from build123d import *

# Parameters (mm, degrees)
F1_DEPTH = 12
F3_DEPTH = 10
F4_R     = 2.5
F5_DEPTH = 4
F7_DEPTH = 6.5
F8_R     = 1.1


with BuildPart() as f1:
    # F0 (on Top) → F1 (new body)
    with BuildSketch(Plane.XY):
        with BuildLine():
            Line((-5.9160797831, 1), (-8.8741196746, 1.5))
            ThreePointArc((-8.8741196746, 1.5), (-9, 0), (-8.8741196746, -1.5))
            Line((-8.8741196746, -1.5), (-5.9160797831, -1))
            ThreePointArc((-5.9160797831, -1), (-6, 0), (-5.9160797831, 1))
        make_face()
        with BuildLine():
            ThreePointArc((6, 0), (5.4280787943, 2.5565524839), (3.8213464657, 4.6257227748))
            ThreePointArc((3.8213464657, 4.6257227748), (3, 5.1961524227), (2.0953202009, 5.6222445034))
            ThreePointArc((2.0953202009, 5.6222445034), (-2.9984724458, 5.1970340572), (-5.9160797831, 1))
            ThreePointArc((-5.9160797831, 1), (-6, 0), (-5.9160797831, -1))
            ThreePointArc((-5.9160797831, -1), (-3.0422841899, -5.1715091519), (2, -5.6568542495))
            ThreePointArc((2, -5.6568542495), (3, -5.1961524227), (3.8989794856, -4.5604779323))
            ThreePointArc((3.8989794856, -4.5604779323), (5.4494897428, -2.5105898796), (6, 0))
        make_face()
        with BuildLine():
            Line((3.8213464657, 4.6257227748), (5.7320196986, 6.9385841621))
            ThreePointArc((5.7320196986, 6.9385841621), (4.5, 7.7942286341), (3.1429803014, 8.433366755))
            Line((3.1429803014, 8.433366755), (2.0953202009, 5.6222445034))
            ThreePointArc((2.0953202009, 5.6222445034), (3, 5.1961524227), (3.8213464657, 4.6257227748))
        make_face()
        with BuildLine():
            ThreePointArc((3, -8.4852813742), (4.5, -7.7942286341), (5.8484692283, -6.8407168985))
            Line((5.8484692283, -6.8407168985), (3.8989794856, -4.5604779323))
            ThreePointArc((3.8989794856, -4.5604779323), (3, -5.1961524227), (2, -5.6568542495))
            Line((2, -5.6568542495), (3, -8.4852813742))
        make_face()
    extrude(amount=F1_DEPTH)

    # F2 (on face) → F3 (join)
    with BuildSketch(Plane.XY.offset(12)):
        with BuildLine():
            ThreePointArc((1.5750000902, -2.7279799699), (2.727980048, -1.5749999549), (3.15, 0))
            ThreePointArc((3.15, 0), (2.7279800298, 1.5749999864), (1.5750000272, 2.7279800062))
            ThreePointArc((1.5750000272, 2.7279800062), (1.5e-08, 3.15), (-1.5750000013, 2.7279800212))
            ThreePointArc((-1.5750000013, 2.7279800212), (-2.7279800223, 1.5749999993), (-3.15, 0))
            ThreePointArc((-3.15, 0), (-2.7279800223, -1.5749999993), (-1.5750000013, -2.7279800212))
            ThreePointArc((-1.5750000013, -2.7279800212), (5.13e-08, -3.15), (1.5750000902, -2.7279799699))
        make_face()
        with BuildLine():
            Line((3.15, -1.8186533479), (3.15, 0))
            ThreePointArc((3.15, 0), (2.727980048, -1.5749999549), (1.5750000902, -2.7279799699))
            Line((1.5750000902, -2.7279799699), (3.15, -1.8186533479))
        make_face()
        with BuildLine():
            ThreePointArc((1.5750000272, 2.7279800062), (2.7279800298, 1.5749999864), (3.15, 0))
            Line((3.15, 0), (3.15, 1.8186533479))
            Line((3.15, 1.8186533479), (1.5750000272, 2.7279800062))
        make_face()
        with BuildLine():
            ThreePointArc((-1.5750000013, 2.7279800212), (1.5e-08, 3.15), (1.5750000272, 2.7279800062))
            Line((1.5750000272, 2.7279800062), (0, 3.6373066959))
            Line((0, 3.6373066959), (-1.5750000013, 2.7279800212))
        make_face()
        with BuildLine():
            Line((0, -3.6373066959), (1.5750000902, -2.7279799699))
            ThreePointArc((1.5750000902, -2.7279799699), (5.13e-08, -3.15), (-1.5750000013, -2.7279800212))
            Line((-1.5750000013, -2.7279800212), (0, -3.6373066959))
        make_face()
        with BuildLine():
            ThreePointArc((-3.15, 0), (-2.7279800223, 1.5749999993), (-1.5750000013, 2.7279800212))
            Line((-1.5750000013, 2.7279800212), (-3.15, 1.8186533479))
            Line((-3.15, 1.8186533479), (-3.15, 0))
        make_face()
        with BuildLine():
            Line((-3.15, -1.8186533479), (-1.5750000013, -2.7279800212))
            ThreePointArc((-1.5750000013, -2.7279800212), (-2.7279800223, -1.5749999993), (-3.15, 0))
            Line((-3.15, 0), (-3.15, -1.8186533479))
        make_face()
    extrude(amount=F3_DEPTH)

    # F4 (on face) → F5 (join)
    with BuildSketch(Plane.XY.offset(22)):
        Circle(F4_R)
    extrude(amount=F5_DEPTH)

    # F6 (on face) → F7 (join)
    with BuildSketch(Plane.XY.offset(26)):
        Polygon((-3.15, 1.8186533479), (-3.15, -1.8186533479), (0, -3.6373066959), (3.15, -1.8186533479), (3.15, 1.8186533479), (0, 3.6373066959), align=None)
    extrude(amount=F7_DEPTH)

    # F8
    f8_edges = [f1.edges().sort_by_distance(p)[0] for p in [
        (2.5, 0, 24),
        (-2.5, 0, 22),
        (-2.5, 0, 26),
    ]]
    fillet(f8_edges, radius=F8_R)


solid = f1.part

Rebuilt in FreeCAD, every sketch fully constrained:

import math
import FreeCAD as App
import Part
import Sketcher
Q = App.Units.Quantity


def edges_at(feature, points):
    """Names of the edges that pass closest to the given points."""
    edges = feature.Shape.Edges
    near = lambda p: min(range(len(edges)), key=lambda i: edges[i].distToShape(Part.Vertex(*p))[0])
    return sorted({f"Edge{near(p) + 1}" for p in points})

doc = App.newDocument("Part")
body = doc.addObject("PartDesign::Body", "Body")

sketch1 = body.newObject("Sketcher::SketchObject", "Sketch")
sketch1.AttachmentSupport = (doc.getObject("XY_Plane"), [""])
sketch1.MapMode = "FlatFace"
sketch1.addGeometry(Part.LineSegment(App.Vector(-5.91608, 1, 0), App.Vector(-8.87412, 1.5, 0)), False)
sketch1.addGeometry(Part.ArcOfCircle(Part.Circle(App.Vector(0, 0, 0), App.Vector(0, 0, 1), 9), math.radians(170.405932), math.radians(189.594068)), False)
sketch1.addGeometry(Part.LineSegment(App.Vector(-8.87412, -1.5, 0), App.Vector(-5.91608, -1, 0)), False)
sketch1.addGeometry(Part.ArcOfCircle(Part.Circle(App.Vector(0, 0, 0), App.Vector(0, 0, 1), 6), math.radians(-170.405932), math.radians(-70.528779)), False)
sketch1.addGeometry(Part.LineSegment(App.Vector(2, -5.656854, 0), App.Vector(3, -8.485281, 0)), False)
sketch1.addGeometry(Part.ArcOfCircle(Part.Circle(App.Vector(0, 0, 0), App.Vector(0, 0, 1), 9), math.radians(-70.528779), math.radians(-49.471221)), False)
sketch1.addGeometry(Part.LineSegment(App.Vector(5.848469, -6.840717, 0), App.Vector(3.898979, -4.560478, 0)), False)
sketch1.addGeometry(Part.ArcOfCircle(Part.Circle(App.Vector(0, 0, 0), App.Vector(0, 0, 1), 6), math.radians(-49.471221), math.radians(0)), False)
sketch1.addGeometry(Part.ArcOfCircle(Part.Circle(App.Vector(0, 0, 0), App.Vector(0, 0, 1), 6), math.radians(0), math.radians(50.439616)), False)
sketch1.addGeometry(Part.LineSegment(App.Vector(3.821346, 4.625723, 0), App.Vector(5.73202, 6.938584, 0)), False)
sketch1.addGeometry(Part.ArcOfCircle(Part.Circle(App.Vector(0, 0, 0), App.Vector(0, 0, 1), 9), math.radians(50.439616), math.radians(69.560384)), False)
sketch1.addGeometry(Part.LineSegment(App.Vector(3.14298, 8.433367, 0), App.Vector(2.09532, 5.622245, 0)), False)
sketch1.addGeometry(Part.ArcOfCircle(Part.Circle(App.Vector(0, 0, 0), App.Vector(0, 0, 1), 6), math.radians(69.560384), math.radians(170.405932)), False)
sketch1.addConstraint(Sketcher.Constraint("Coincident", 0, 2, 1, 1))
sketch1.addConstraint(Sketcher.Constraint("Coincident", 1, 2, 2, 1))
sketch1.addConstraint(Sketcher.Constraint("Coincident", 2, 2, 3, 1))
sketch1.addConstraint(Sketcher.Constraint("Coincident", 3, 2, 4, 1))
sketch1.addConstraint(Sketcher.Constraint("Coincident", 4, 2, 5, 1))
sketch1.addConstraint(Sketcher.Constraint("Coincident", 5, 2, 6, 1))
sketch1.addConstraint(Sketcher.Constraint("Coincident", 6, 2, 7, 1))
sketch1.addConstraint(Sketcher.Constraint("Tangent", 7, 2, 8, 1))
sketch1.addConstraint(Sketcher.Constraint("Coincident", 8, 2, 9, 1))
sketch1.addConstraint(Sketcher.Constraint("Coincident", 9, 2, 10, 1))
sketch1.addConstraint(Sketcher.Constraint("Coincident", 10, 2, 11, 1))
sketch1.addConstraint(Sketcher.Constraint("Coincident", 11, 2, 12, 1))
sketch1.addConstraint(Sketcher.Constraint("Coincident", 12, 2, 0, 1))
sketch1.addConstraint(Sketcher.Constraint("Coincident", 1, 3, -1, 1))
sketch1.addConstraint(Sketcher.Constraint("Coincident", 3, 3, -1, 1))
sketch1.addConstraint(Sketcher.Constraint("Coincident", 5, 3, -1, 1))
sketch1.addConstraint(Sketcher.Constraint("Coincident", 7, 3, -1, 1))
sketch1.addConstraint(Sketcher.Constraint("Coincident", 10, 3, -1, 1))
sketch1.addConstraint(Sketcher.Constraint("Coincident", 12, 3, -1, 1))
sketch1.addConstraint(Sketcher.Constraint("Equal", 1, 5))
sketch1.addConstraint(Sketcher.Constraint("Equal", 3, 7))
sketch1.addConstraint(Sketcher.Constraint("Equal", 7, 8))
sketch1.addConstraint(Sketcher.Constraint("Equal", 5, 10))
sketch1.addConstraint(Sketcher.Constraint("Equal", 8, 12))
sketch1.addConstraint(Sketcher.Constraint("PointOnObject", 7, 2, -1))
sketch1.addConstraint(Sketcher.Constraint("Vertical", 0, 2, 1, 2))
sketch1.addConstraint(Sketcher.Constraint("Vertical", 2, 2, 12, 2))
sketch1.addConstraint(Sketcher.Constraint("Radius", 1, Q("9 mm")))
sketch1.addConstraint(Sketcher.Constraint("Radius", 3, Q("6 mm")))
sketch1.addConstraint(Sketcher.Constraint("DistanceY", 2, 2, -1, 1, Q("1 mm")))
sketch1.addConstraint(Sketcher.Constraint("DistanceX", -1, 1, 3, 2, Q("2 mm")))
sketch1.addConstraint(Sketcher.Constraint("DistanceX", -1, 1, 4, 2, Q("3 mm")))
sketch1.addConstraint(Sketcher.Constraint("DistanceY", 1, 2, 0, 2, Q("3 mm")))
sketch1.addConstraint(Sketcher.Constraint("DistanceX", 11, 2, 9, 2, Q("3.636699 mm")))
sketch1.addConstraint(Sketcher.Constraint("DistanceX", -1, 1, 5, 2, Q("5.848469 mm")))
sketch1.addConstraint(Sketcher.Constraint("DistanceX", -1, 1, 6, 2, Q("3.898979 mm")))
sketch1.addConstraint(Sketcher.Constraint("DistanceX", -1, 1, 9, 2, Q("5.73202 mm")))
sketch1.addConstraint(Sketcher.Constraint("DistanceX", -1, 1, 10, 2, Q("3.14298 mm")))
sketch1.addConstraint(Sketcher.Constraint("DistanceY", 8, 2, 9, 2, Q("2.312861 mm")))
pad1 = body.newObject("PartDesign::Pad", "Pad")
pad1.Profile = sketch1
pad1.Length = 12

sketch2 = body.newObject("Sketcher::SketchObject", "Sketch001")
sketch2.AttachmentSupport = (doc.getObject("XY_Plane"), [""])
sketch2.MapMode = "FlatFace"
sketch2.AttachmentOffset = App.Placement(App.Vector(0, 0, 12), App.Rotation())
sketch2.addGeometry(Part.LineSegment(App.Vector(-1.575, -2.72798, 0), App.Vector(0, -3.637307, 0)), False)
sketch2.addGeometry(Part.LineSegment(App.Vector(0, -3.637307, 0), App.Vector(1.575, -2.72798, 0)), False)
sketch2.addGeometry(Part.LineSegment(App.Vector(1.575, -2.72798, 0), App.Vector(3.15, -1.818653, 0)), False)
sketch2.addGeometry(Part.LineSegment(App.Vector(3.15, -1.818653, 0), App.Vector(3.15, 1.818653, 0)), False)
sketch2.addGeometry(Part.LineSegment(App.Vector(3.15, 1.818653, 0), App.Vector(1.575, 2.72798, 0)), False)
sketch2.addGeometry(Part.LineSegment(App.Vector(1.575, 2.72798, 0), App.Vector(0, 3.637307, 0)), False)
sketch2.addGeometry(Part.LineSegment(App.Vector(0, 3.637307, 0), App.Vector(-1.575, 2.72798, 0)), False)
sketch2.addGeometry(Part.LineSegment(App.Vector(-1.575, 2.72798, 0), App.Vector(-3.15, 1.818653, 0)), False)
sketch2.addGeometry(Part.LineSegment(App.Vector(-3.15, 1.818653, 0), App.Vector(-3.15, -1.818653, 0)), False)
sketch2.addGeometry(Part.LineSegment(App.Vector(-3.15, -1.818653, 0), App.Vector(-1.575, -2.72798, 0)), False)
sketch2.addConstraint(Sketcher.Constraint("Coincident", 0, 2, 1, 1))
sketch2.addConstraint(Sketcher.Constraint("Coincident", 1, 2, 2, 1))
sketch2.addConstraint(Sketcher.Constraint("Coincident", 2, 2, 3, 1))
sketch2.addConstraint(Sketcher.Constraint("Coincident", 3, 2, 4, 1))
sketch2.addConstraint(Sketcher.Constraint("Coincident", 4, 2, 5, 1))
sketch2.addConstraint(Sketcher.Constraint("Coincident", 5, 2, 6, 1))
sketch2.addConstraint(Sketcher.Constraint("Coincident", 6, 2, 7, 1))
sketch2.addConstraint(Sketcher.Constraint("Coincident", 7, 2, 8, 1))
sketch2.addConstraint(Sketcher.Constraint("Coincident", 8, 2, 9, 1))
sketch2.addConstraint(Sketcher.Constraint("Coincident", 9, 2, 0, 1))
sketch2.addConstraint(Sketcher.Constraint("Vertical", 3))
sketch2.addConstraint(Sketcher.Constraint("Vertical", 8))
sketch2.addConstraint(Sketcher.Constraint("Symmetric", 0, 2, 5, 2, -1, 1))
sketch2.addConstraint(Sketcher.Constraint("Symmetric", 1, 2, 6, 2, -1, 1))
sketch2.addConstraint(Sketcher.Constraint("Symmetric", 2, 2, 7, 2, -1, 1))
sketch2.addConstraint(Sketcher.Constraint("Symmetric", 4, 2, 9, 2, -1, 1))
sketch2.addConstraint(Sketcher.Constraint("Symmetric", 4, 2, 6, 2, -2))
sketch2.addConstraint(Sketcher.Constraint("PointOnObject", 0, 2, -2))
sketch2.addConstraint(Sketcher.Constraint("Parallel", 1, 2))
sketch2.addConstraint(Sketcher.Constraint("Parallel", 0, 4))
sketch2.addConstraint(Sketcher.Constraint("Parallel", 5, 9))
sketch2.addConstraint(Sketcher.Constraint("Equal", 1, 2))
sketch2.addConstraint(Sketcher.Constraint("Angle", 0, Q("-30 deg")))
sketch2.addConstraint(Sketcher.Constraint("DistanceX", 7, 2, 3, 2, Q("6.3 mm")))
sketch2.addConstraint(Sketcher.Constraint("DistanceY", 3, 1, 3, 2, Q("3.637307 mm")))
pad2 = body.newObject("PartDesign::Pad", "Pad001")
pad2.Profile = sketch2
pad2.Length = 10

sketch3 = body.newObject("Sketcher::SketchObject", "Sketch002")
sketch3.AttachmentSupport = (doc.getObject("XY_Plane"), [""])
sketch3.MapMode = "FlatFace"
sketch3.AttachmentOffset = App.Placement(App.Vector(0, 0, 22), App.Rotation())
sketch3.addGeometry(Part.Circle(App.Vector(0, 0, 0), App.Vector(0, 0, 1), 2.5), False)
sketch3.addConstraint(Sketcher.Constraint("Coincident", 0, 3, -1, 1))
sketch3.addConstraint(Sketcher.Constraint("Diameter", 0, Q("5 mm")))
pad3 = body.newObject("PartDesign::Pad", "Pad002")
pad3.Profile = sketch3
pad3.Length = 4

sketch4 = body.newObject("Sketcher::SketchObject", "Sketch003")
sketch4.AttachmentSupport = (doc.getObject("XY_Plane"), [""])
sketch4.MapMode = "FlatFace"
sketch4.AttachmentOffset = App.Placement(App.Vector(0, 0, 26), App.Rotation())
sketch4.addGeometry(Part.LineSegment(App.Vector(-3.15, 1.818653, 0), App.Vector(-3.15, -1.818653, 0)), False)
sketch4.addGeometry(Part.LineSegment(App.Vector(-3.15, -1.818653, 0), App.Vector(0, -3.637307, 0)), False)
sketch4.addGeometry(Part.LineSegment(App.Vector(0, -3.637307, 0), App.Vector(3.15, -1.818653, 0)), False)
sketch4.addGeometry(Part.LineSegment(App.Vector(3.15, -1.818653, 0), App.Vector(3.15, 1.818653, 0)), False)
sketch4.addGeometry(Part.LineSegment(App.Vector(3.15, 1.818653, 0), App.Vector(0, 3.637307, 0)), False)
sketch4.addGeometry(Part.LineSegment(App.Vector(0, 3.637307, 0), App.Vector(-3.15, 1.818653, 0)), False)
sketch4.addConstraint(Sketcher.Constraint("Coincident", 0, 2, 1, 1))
sketch4.addConstraint(Sketcher.Constraint("Coincident", 1, 2, 2, 1))
sketch4.addConstraint(Sketcher.Constraint("Coincident", 2, 2, 3, 1))
sketch4.addConstraint(Sketcher.Constraint("Coincident", 3, 2, 4, 1))
sketch4.addConstraint(Sketcher.Constraint("Coincident", 4, 2, 5, 1))
sketch4.addConstraint(Sketcher.Constraint("Coincident", 5, 2, 0, 1))
sketch4.addConstraint(Sketcher.Constraint("Vertical", 0))
sketch4.addConstraint(Sketcher.Constraint("Vertical", 3))
sketch4.addConstraint(Sketcher.Constraint("Symmetric", 0, 2, 3, 2, -1, 1))
sketch4.addConstraint(Sketcher.Constraint("Symmetric", 1, 2, 4, 2, -1, 1))
sketch4.addConstraint(Sketcher.Constraint("PointOnObject", 1, 2, -2))
sketch4.addConstraint(Sketcher.Constraint("Parallel", 2, 5))
sketch4.addConstraint(Sketcher.Constraint("Horizontal", 0, 2, 2, 2))
sketch4.addConstraint(Sketcher.Constraint("Angle", 1, Q("-30 deg")))
sketch4.addConstraint(Sketcher.Constraint("DistanceX", 0, 2, 2, 2, Q("6.3 mm")))
sketch4.addConstraint(Sketcher.Constraint("DistanceY", 0, 2, 0, 1, Q("3.637307 mm")))
pad4 = body.newObject("PartDesign::Pad", "Pad003")
pad4.Profile = sketch4
pad4.Length = 6.5
doc.recompute()

fillet = body.newObject("PartDesign::Fillet", "Fillet")
fillet.Base = (pad4, edges_at(pad4, [(2.5, 0, 24), (-2.5, 0, 22), (-2.5, 0, 26)]))
fillet.Radius = 1.1

doc.recompute()
